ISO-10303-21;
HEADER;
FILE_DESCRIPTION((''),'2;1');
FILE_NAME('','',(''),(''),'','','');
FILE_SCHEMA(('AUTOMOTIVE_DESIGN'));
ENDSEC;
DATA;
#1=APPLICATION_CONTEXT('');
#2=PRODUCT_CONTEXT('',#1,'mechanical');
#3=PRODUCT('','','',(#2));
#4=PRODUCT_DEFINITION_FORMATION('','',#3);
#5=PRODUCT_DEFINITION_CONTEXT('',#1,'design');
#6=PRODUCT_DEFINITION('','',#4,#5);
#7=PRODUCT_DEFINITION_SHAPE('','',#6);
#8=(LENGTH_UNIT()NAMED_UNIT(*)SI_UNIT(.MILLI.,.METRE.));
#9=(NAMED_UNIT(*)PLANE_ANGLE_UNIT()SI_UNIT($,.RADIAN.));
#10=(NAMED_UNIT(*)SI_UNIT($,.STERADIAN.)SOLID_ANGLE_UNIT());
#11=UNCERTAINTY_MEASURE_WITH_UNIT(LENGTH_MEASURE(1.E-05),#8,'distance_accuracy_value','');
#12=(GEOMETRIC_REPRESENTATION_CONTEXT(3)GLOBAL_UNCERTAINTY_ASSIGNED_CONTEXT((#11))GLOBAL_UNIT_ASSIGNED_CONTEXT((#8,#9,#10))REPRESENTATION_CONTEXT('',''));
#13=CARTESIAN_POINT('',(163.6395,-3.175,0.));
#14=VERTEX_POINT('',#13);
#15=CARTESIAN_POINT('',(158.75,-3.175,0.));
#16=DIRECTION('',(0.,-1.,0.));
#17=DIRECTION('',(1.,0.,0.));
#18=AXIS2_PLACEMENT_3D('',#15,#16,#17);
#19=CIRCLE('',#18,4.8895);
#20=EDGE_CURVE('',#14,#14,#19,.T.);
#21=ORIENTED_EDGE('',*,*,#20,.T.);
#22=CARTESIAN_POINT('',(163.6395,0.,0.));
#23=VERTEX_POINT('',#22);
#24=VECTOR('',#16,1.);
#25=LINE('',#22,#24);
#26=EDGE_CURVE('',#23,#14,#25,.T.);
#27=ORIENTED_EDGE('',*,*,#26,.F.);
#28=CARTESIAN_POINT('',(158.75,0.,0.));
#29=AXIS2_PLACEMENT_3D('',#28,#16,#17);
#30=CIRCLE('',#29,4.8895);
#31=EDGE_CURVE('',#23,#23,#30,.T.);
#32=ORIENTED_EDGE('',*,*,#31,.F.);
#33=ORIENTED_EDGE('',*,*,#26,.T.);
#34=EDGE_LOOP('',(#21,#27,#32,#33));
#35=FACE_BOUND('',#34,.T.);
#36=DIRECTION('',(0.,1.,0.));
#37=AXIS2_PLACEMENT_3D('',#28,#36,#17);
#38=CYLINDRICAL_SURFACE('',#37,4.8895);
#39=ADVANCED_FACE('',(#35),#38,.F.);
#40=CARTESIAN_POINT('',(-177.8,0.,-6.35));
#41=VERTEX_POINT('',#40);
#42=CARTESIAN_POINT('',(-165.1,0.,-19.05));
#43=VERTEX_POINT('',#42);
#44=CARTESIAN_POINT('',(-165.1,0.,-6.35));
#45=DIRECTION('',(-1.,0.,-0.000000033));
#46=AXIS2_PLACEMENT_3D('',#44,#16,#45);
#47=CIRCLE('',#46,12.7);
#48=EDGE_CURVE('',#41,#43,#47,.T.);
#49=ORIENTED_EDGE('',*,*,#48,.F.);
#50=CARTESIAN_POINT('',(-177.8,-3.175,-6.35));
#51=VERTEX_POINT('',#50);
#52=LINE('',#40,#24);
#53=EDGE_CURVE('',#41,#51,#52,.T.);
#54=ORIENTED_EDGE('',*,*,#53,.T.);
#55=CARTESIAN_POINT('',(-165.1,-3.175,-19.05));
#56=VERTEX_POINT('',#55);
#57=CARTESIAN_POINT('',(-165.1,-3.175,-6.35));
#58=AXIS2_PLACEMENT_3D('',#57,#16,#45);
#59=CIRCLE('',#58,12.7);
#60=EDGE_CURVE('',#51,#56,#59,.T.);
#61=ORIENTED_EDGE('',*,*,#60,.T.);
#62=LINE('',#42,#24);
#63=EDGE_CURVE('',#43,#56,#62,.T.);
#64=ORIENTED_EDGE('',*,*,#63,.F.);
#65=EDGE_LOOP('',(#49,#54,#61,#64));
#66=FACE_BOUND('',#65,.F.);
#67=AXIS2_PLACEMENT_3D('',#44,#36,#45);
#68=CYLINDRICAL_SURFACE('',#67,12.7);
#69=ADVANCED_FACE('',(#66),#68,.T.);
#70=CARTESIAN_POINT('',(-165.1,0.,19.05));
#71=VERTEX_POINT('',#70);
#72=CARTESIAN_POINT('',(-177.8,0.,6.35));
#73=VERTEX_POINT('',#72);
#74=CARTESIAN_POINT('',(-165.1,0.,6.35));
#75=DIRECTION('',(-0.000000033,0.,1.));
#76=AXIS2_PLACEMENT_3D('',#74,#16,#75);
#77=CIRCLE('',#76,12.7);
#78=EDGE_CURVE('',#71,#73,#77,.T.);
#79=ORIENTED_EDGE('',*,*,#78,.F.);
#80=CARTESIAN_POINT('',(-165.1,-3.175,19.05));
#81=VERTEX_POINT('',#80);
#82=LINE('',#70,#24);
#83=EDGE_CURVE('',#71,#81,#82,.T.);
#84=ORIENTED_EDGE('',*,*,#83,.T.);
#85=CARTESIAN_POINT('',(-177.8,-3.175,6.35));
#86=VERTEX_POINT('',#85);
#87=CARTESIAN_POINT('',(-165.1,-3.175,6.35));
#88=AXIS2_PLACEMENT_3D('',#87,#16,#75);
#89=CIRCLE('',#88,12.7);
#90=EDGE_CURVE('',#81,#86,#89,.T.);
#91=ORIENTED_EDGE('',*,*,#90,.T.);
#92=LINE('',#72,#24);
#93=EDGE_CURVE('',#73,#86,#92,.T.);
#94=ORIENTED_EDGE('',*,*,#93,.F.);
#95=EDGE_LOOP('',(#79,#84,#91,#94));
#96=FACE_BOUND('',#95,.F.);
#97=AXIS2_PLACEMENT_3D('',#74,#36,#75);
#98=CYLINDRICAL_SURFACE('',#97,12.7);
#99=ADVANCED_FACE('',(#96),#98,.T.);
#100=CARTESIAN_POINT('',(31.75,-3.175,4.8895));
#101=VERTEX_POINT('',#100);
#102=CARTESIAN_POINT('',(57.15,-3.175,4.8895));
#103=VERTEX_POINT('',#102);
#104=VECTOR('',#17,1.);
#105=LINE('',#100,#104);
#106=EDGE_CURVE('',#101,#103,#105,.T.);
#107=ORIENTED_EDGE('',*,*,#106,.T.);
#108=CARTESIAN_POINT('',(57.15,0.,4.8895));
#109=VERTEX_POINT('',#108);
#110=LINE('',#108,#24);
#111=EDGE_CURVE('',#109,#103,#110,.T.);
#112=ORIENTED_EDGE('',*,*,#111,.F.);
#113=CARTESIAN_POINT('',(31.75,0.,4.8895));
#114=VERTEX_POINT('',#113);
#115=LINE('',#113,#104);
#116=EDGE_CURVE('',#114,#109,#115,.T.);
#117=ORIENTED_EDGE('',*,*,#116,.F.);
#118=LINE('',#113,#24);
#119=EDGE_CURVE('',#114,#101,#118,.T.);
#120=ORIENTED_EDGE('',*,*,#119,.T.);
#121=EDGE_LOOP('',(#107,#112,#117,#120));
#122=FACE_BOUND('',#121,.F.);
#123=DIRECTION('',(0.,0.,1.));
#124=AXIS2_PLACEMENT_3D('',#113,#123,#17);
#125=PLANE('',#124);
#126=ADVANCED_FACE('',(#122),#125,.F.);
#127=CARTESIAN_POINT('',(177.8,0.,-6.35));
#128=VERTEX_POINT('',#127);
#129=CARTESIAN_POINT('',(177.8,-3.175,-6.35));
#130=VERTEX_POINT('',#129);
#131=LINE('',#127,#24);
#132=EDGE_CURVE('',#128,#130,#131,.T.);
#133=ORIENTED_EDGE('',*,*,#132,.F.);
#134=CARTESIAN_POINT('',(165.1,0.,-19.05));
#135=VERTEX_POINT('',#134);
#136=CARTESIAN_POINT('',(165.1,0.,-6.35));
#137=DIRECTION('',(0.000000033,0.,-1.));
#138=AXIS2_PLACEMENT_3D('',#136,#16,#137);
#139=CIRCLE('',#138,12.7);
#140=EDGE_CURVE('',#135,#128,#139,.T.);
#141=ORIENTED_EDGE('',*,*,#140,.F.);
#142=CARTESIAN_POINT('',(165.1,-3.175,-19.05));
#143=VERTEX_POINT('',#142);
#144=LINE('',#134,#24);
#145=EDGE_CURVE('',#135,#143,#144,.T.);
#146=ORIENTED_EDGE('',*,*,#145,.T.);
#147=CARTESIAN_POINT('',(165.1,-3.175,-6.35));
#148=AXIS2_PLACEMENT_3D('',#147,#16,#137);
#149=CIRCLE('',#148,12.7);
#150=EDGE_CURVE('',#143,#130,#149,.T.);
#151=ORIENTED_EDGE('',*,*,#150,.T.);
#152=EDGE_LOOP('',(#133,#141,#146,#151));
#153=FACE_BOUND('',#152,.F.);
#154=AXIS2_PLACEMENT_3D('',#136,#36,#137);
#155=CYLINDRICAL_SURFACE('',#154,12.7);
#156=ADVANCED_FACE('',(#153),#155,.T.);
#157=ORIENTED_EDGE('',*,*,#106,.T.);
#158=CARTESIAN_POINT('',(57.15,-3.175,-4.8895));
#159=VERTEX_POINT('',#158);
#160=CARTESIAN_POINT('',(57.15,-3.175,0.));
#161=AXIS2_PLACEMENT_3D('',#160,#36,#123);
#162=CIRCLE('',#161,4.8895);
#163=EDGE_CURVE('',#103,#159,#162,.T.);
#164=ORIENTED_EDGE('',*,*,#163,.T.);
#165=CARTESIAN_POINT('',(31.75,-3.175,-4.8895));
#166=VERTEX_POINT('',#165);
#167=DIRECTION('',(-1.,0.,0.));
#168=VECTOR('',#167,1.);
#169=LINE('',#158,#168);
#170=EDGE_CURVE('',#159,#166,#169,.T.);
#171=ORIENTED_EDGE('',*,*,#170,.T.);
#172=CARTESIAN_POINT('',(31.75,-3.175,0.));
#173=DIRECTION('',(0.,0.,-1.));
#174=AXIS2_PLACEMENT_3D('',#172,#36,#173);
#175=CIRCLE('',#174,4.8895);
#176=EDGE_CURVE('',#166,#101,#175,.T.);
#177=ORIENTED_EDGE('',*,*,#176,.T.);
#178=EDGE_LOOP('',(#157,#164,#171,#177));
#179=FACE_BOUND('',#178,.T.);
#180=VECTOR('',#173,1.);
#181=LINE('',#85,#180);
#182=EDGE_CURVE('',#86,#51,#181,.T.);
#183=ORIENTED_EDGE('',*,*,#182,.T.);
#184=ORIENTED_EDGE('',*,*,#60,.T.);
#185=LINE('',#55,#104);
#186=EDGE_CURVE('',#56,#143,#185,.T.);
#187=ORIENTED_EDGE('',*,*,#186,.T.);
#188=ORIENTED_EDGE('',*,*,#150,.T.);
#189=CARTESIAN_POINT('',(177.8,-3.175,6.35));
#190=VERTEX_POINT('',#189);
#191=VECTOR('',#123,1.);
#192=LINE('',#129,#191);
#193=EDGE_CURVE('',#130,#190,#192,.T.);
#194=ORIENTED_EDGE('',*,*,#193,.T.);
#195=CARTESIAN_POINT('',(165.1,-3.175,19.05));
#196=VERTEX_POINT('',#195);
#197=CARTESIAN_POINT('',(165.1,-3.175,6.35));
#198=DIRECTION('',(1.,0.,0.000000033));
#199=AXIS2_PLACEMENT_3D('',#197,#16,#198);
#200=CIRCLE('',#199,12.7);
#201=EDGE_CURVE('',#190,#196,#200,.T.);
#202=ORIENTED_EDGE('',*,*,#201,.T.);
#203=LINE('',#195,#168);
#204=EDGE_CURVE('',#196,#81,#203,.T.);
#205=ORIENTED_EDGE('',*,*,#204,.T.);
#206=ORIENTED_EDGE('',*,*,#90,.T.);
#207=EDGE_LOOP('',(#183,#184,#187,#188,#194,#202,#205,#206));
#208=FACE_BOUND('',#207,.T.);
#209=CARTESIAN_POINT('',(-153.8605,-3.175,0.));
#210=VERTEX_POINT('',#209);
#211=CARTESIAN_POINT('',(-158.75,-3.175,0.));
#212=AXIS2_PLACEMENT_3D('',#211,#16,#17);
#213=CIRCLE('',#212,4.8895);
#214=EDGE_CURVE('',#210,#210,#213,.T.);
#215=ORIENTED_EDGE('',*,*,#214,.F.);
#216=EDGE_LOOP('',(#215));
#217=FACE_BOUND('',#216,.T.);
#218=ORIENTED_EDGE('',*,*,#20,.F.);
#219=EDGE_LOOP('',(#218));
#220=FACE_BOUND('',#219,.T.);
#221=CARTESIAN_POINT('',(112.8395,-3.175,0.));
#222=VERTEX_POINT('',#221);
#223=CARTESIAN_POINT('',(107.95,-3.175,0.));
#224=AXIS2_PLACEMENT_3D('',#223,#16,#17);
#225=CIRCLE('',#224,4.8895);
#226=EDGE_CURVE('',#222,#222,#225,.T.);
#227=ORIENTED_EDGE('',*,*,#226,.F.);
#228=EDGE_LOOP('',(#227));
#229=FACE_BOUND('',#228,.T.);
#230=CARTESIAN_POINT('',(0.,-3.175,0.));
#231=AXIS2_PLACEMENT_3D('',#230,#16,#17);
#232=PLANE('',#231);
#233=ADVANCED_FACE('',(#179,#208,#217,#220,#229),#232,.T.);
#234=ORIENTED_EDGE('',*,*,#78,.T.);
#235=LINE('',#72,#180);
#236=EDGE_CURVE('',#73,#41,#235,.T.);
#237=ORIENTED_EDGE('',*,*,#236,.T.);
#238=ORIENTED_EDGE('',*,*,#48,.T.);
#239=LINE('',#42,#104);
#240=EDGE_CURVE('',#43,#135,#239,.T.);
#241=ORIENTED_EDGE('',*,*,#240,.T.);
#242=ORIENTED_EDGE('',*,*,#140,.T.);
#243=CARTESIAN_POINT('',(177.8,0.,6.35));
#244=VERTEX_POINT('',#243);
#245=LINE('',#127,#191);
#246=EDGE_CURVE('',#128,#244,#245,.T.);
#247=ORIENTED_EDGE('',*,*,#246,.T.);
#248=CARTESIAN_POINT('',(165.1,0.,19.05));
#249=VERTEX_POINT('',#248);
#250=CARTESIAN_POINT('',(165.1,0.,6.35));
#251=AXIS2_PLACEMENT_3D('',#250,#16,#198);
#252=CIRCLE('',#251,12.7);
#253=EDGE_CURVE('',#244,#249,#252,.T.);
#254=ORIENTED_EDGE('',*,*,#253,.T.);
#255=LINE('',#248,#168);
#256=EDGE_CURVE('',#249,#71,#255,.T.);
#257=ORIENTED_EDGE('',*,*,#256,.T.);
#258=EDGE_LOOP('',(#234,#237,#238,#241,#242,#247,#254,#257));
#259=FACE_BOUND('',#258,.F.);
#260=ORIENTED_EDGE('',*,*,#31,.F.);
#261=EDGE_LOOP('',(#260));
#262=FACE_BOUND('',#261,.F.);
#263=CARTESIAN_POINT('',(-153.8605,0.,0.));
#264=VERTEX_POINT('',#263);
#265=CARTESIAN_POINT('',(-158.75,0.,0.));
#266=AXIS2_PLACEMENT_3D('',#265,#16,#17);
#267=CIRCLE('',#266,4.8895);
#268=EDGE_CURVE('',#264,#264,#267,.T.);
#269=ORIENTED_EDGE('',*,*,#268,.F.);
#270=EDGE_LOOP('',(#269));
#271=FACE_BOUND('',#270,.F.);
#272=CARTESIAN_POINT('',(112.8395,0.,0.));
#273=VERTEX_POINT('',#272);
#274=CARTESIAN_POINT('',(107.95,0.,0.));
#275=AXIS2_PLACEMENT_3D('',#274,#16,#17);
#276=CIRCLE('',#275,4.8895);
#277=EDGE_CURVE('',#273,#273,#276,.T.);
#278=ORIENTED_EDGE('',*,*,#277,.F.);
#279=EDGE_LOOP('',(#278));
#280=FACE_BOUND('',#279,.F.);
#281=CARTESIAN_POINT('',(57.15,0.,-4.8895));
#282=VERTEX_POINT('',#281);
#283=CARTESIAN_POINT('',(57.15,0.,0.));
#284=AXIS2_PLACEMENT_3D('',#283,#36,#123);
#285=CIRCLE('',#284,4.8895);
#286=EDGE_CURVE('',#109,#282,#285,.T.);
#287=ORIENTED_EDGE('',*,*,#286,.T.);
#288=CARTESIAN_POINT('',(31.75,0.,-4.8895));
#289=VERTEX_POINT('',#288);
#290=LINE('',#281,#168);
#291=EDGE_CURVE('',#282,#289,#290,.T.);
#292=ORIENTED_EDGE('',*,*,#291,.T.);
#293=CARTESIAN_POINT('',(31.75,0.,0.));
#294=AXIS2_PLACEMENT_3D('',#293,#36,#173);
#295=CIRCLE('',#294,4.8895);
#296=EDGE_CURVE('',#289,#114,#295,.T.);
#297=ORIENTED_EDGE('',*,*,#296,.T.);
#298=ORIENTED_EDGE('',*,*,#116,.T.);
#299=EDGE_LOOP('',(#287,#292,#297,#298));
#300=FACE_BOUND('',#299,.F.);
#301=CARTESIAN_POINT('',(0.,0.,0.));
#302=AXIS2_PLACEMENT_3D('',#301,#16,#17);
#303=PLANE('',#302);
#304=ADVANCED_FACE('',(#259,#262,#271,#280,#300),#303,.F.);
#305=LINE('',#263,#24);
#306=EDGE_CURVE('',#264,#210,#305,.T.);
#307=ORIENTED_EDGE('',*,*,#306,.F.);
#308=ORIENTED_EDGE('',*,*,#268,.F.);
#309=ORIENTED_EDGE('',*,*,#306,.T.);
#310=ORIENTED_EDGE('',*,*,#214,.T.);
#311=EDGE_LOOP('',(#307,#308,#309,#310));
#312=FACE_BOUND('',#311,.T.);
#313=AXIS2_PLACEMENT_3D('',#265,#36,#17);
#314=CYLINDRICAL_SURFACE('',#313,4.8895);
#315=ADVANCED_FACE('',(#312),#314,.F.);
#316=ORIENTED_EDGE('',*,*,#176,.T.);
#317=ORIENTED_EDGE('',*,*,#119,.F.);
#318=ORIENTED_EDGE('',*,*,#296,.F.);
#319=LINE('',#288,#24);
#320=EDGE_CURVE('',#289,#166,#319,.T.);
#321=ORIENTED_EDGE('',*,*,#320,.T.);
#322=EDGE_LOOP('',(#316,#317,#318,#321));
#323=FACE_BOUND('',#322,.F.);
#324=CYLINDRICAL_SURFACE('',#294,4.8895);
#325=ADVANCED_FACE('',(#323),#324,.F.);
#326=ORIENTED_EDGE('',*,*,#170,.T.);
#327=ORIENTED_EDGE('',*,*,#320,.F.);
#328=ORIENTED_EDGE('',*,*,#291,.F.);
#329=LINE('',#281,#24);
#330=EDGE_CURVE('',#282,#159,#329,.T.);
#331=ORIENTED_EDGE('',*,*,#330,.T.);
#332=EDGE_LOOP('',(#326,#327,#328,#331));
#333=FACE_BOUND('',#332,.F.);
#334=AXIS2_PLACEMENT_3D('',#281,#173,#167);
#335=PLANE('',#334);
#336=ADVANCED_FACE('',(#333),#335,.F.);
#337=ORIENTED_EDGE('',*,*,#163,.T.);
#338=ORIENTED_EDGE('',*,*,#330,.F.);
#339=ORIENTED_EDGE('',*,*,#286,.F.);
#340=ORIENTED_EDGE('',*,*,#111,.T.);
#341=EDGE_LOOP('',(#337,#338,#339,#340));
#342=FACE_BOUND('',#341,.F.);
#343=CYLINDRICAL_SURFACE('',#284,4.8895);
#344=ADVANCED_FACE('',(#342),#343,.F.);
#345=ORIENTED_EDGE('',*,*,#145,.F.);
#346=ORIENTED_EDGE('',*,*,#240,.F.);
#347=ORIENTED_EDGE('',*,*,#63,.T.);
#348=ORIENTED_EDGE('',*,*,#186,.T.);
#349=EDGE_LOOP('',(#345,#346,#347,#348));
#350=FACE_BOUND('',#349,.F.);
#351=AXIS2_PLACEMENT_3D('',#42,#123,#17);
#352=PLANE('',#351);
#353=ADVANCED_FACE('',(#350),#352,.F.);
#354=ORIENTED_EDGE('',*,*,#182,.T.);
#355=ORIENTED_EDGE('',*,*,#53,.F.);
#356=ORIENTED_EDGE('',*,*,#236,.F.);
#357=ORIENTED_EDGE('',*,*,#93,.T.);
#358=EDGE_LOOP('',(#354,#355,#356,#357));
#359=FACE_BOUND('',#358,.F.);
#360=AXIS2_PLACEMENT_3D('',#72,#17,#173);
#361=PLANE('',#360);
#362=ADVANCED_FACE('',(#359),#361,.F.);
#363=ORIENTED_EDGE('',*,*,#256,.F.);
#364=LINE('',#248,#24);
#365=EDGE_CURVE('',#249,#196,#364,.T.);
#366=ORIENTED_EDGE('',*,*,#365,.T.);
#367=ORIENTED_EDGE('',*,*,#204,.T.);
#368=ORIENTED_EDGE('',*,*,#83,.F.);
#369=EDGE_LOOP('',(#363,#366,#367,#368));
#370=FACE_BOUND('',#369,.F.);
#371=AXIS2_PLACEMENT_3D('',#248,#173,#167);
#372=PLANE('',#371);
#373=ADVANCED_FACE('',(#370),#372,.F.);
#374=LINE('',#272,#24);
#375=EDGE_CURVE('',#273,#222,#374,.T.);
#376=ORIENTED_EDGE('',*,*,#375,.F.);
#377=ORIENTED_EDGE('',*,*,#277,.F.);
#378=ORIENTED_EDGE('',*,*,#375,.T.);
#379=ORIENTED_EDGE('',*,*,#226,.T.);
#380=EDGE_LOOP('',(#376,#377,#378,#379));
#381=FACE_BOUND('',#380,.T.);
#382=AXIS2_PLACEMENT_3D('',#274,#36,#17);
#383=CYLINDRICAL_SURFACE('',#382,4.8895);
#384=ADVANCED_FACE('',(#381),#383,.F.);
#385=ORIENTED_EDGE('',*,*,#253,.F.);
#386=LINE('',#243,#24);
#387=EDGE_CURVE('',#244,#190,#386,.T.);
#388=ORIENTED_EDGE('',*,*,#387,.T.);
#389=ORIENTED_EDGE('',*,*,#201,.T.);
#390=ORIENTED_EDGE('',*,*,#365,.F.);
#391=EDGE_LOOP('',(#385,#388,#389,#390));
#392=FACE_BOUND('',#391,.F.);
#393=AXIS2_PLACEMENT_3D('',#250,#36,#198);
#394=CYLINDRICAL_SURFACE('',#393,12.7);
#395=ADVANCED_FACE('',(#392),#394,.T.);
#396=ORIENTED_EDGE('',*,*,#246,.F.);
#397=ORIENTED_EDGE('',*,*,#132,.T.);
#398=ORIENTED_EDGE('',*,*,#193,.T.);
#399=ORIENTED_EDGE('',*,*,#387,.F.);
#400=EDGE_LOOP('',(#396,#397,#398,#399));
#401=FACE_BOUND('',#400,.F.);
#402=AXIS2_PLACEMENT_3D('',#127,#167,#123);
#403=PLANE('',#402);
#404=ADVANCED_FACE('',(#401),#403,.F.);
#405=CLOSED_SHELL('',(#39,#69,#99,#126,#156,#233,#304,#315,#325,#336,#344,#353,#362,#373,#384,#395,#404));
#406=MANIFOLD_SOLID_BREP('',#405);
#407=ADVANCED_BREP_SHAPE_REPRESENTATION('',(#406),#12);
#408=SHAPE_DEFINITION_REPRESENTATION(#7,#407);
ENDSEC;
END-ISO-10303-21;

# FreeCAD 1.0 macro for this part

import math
import FreeCAD as App
import Part
import Sketcher
from FreeCAD import Vector
Q = App.Units.Quantity

doc = App.newDocument("Part")
body = doc.addObject("PartDesign::Body", "Body")

sketch1 = body.newObject("Sketcher::SketchObject", "Sketch")
sketch1.AttachmentSupport = (doc.getObject("XZ_Plane"), [""])
sketch1.MapMode = "FlatFace"
sketch1.addGeometry([
    Part.LineSegment(Vector(-165.1, -19.1, 0), Vector(165.1, -19.1, 0)),
    Part.ArcOfCircle(Part.Circle(Vector(165.1, -6.3, 0), Vector(0, 0, 1), 12.7), math.radians(-90), math.radians(0)),
    Part.LineSegment(Vector(177.8, -6.3, 0), Vector(177.8, 6.3, 0)),
    Part.ArcOfCircle(Part.Circle(Vector(165.1, 6.3, 0), Vector(0, 0, 1), 12.7), math.radians(0), math.radians(90)),
    Part.LineSegment(Vector(165.1, 19.1, 0), Vector(-165.1, 19.1, 0)),
    Part.ArcOfCircle(Part.Circle(Vector(-165.1, 6.3, 0), Vector(0, 0, 1), 12.7), math.radians(90), math.radians(180)),
    Part.LineSegment(Vector(-177.8, 6.3, 0), Vector(-177.8, -6.3, 0)),
    Part.ArcOfCircle(Part.Circle(Vector(-165.1, -6.3, 0), Vector(0, 0, 1), 12.7), math.radians(-180), math.radians(-90)),
    Part.Circle(Vector(-158.8, 0, 0), Vector(0, 0, 1), 4.9),
    Part.ArcOfCircle(Part.Circle(Vector(31.8, 0, 0), Vector(0, 0, 1), 4.9), math.radians(90), math.radians(270)),
    Part.LineSegment(Vector(31.8, 4.9, 0), Vector(57.1, 4.9, 0)),
    Part.ArcOfCircle(Part.Circle(Vector(57.1, 0, 0), Vector(0, 0, 1), 4.9), math.radians(-90), math.radians(90)),
    Part.LineSegment(Vector(57.1, -4.9, 0), Vector(31.8, -4.9, 0)),
    Part.Circle(Vector(108, 0, 0), Vector(0, 0, 1), 4.9),
    Part.Circle(Vector(158.8, 0, 0), Vector(0, 0, 1), 4.9),
], False)
sketch1.addConstraint([
    Sketcher.Constraint("Tangent", 0, 2, 1, 1),
    Sketcher.Constraint("Tangent", 1, 2, 2, 1),
    Sketcher.Constraint("Tangent", 2, 2, 3, 1),
    Sketcher.Constraint("Tangent", 3, 2, 4, 1),
    Sketcher.Constraint("Tangent", 4, 2, 5, 1),
    Sketcher.Constraint("Tangent", 5, 2, 6, 1),
    Sketcher.Constraint("Tangent", 6, 2, 7, 1),
    Sketcher.Constraint("Tangent", 7, 2, 0, 1),
    Sketcher.Constraint("Tangent", 9, 1, 10, 1),
    Sketcher.Constraint("Tangent", 10, 2, 11, 2),
    Sketcher.Constraint("Tangent", 11, 1, 12, 1),
    Sketcher.Constraint("Tangent", 12, 2, 9, 2),
    Sketcher.Constraint("Horizontal", 0),
    Sketcher.Constraint("Vertical", 2),
    Sketcher.Constraint("Horizontal", 4),
    Sketcher.Constraint("Vertical", 6),
    Sketcher.Constraint("Horizontal", 10),
    Sketcher.Constraint("Horizontal", 12),
    Sketcher.Constraint("Equal", 1, 3),
    Sketcher.Constraint("Equal", 3, 5),
    Sketcher.Constraint("Equal", 5, 7),
    Sketcher.Constraint("Equal", 8, 9),
    Sketcher.Constraint("Equal", 11, 13),
    Sketcher.Constraint("Equal", 13, 14),
    Sketcher.Constraint("Symmetric", 1, 3, 5, 3, -1, 1),
    Sketcher.Constraint("Symmetric", 8, 3, 14, 3, -1, 1),
    Sketcher.Constraint("PointOnObject", 8, 3, -1),
    Sketcher.Constraint("PointOnObject", 9, 3, -1),
    Sketcher.Constraint("PointOnObject", 13, 3, -1),
    Sketcher.Constraint("Radius", 1, Q("0.5 in")),
    Sketcher.Constraint("DistanceX", 0, 1, 0, 2, Q("13 in")),
    Sketcher.Constraint("DistanceX", 10, 1, 10, 2, Q("1 in")),
    Sketcher.Constraint("Diameter", 8, Q("0.385 in")),
    Sketcher.Constraint("DistanceY", 2, 1, 2, 2, Q("0.5 in")),
    Sketcher.Constraint("DistanceX", 11, 3, 13, 3, Q("2 in")),
    Sketcher.Constraint("DistanceX", 13, 3, 14, 3, Q("2 in")),
    Sketcher.Constraint("DistanceX", 8, 3, 9, 3, Q("7.5 in")),
])
pad1 = body.newObject("PartDesign::Pad", "Pad")
pad1.Profile = sketch1
pad1.Length = Q("0.125 in")

doc.recompute()
